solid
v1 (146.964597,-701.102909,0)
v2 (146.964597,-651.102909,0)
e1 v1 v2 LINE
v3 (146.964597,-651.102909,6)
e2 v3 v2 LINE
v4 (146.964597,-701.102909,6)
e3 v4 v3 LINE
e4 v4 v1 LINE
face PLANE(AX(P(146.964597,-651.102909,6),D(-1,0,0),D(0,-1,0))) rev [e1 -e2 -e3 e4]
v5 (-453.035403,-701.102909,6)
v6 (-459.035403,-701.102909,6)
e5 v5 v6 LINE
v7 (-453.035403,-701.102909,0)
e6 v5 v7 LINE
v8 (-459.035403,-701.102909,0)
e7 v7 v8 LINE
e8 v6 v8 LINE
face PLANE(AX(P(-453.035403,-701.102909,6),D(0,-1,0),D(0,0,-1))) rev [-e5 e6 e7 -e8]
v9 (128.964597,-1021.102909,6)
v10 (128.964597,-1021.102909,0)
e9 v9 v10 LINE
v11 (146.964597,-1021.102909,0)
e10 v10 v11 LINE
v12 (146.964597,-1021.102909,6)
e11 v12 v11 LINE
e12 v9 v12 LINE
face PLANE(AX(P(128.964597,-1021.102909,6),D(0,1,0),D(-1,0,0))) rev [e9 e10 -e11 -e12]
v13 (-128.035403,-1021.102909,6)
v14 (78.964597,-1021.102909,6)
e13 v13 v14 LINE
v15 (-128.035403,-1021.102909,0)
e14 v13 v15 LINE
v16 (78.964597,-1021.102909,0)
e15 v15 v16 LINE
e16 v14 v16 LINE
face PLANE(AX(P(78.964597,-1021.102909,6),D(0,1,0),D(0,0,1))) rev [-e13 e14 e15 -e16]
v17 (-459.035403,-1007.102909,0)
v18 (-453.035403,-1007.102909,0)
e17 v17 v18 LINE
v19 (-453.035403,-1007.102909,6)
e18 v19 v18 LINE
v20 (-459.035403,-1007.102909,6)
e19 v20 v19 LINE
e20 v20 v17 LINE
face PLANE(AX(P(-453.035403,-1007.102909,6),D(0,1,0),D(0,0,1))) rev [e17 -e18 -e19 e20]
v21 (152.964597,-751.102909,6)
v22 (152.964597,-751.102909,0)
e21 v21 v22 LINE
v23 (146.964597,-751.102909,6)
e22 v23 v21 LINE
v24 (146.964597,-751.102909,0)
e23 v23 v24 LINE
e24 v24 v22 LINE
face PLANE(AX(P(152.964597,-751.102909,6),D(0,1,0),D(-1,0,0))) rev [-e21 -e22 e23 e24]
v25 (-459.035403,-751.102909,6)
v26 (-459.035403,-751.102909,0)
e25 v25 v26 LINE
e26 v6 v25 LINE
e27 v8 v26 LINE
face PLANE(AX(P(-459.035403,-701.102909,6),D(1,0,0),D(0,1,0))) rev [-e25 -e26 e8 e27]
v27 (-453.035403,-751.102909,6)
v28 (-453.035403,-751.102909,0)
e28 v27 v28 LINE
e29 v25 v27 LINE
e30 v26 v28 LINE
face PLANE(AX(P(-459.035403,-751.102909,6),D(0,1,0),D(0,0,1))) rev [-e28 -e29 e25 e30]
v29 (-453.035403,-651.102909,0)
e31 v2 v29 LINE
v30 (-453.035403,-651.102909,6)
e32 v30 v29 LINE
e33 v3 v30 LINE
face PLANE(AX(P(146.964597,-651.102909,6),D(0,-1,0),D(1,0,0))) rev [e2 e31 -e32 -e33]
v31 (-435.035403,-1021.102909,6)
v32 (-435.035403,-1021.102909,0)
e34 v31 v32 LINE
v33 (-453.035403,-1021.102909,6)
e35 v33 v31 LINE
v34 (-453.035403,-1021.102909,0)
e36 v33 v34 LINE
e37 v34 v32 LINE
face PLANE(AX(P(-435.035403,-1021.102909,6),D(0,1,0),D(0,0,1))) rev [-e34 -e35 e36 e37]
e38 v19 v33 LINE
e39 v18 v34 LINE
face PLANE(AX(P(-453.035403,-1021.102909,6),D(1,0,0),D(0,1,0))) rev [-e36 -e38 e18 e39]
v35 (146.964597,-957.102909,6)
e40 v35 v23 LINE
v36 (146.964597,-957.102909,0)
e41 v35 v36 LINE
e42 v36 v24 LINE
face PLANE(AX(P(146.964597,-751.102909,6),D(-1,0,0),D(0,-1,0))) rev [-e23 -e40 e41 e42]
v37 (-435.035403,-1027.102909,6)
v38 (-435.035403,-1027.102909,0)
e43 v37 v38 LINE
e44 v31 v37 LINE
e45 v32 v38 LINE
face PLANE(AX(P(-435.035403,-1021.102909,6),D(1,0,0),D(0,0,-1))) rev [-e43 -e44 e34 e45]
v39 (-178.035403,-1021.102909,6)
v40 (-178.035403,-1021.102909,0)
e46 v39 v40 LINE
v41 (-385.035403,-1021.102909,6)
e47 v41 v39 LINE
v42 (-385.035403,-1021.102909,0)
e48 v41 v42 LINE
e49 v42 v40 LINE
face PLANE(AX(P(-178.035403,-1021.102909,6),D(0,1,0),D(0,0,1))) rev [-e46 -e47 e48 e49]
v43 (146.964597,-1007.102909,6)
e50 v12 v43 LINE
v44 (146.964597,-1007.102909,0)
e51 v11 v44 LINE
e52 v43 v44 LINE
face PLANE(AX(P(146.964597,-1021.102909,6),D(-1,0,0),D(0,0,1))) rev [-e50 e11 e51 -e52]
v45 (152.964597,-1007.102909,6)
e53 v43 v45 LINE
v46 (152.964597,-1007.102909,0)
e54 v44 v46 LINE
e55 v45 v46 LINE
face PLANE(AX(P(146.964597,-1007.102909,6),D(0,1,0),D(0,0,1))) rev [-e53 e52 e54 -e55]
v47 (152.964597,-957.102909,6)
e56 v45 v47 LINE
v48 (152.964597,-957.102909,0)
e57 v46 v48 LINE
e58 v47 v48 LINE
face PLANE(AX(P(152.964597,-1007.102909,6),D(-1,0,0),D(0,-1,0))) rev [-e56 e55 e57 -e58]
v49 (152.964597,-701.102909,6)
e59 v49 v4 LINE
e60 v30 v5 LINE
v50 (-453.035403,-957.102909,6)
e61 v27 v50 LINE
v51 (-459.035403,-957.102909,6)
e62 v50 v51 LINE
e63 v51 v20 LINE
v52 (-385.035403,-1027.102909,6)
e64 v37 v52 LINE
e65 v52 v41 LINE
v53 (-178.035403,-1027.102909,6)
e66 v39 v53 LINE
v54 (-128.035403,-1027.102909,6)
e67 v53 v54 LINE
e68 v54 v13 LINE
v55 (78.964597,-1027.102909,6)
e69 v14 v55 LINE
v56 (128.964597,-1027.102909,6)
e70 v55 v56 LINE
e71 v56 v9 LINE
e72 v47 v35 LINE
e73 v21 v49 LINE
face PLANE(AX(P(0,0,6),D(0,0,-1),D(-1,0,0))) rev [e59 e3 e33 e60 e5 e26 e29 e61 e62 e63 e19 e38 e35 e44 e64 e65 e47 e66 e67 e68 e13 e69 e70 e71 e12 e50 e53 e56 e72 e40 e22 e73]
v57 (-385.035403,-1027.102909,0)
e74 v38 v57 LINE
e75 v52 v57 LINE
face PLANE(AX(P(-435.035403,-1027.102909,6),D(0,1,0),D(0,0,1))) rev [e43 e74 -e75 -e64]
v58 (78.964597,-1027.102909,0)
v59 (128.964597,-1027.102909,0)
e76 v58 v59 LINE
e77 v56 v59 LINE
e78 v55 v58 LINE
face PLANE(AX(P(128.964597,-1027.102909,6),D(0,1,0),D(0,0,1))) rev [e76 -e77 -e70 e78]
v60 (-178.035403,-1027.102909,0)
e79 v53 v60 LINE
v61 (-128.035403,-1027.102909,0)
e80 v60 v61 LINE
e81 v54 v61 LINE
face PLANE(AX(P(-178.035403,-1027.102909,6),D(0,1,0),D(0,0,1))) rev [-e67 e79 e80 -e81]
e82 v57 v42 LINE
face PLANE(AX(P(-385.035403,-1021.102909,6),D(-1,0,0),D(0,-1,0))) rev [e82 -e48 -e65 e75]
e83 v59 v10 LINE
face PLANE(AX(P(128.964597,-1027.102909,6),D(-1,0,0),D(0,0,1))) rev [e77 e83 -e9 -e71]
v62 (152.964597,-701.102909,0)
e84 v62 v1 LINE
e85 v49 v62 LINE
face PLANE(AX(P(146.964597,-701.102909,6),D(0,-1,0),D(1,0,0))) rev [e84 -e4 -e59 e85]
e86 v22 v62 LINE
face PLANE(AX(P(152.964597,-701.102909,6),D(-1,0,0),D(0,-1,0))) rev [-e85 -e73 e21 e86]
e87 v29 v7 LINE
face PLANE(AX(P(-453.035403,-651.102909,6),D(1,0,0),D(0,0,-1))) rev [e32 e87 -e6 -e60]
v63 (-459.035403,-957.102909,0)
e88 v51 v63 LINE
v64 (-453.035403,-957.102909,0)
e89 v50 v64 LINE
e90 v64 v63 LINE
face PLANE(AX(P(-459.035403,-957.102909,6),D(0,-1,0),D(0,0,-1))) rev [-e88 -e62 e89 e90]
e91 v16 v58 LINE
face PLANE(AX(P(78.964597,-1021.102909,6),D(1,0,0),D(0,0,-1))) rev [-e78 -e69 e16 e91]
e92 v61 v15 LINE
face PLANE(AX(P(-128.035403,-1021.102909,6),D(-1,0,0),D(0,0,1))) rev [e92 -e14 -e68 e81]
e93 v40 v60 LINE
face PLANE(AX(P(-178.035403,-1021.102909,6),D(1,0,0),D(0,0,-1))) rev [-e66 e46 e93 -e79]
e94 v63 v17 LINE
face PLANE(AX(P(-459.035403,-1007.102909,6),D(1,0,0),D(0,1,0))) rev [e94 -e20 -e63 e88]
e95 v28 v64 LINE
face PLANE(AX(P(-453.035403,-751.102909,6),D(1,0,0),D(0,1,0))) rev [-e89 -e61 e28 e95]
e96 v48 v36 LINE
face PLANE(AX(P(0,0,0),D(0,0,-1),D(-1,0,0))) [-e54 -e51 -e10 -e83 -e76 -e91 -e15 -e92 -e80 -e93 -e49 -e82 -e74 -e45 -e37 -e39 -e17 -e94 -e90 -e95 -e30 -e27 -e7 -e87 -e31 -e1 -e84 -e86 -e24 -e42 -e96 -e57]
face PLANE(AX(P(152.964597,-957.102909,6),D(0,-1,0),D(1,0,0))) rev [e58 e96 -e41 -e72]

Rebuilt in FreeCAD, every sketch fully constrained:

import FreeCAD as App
import Part
import Sketcher
from FreeCAD import Vector


def add_polygon(sketch, points):
    """Adds a closed chain of lines whose ends are joined by coincident constraints."""
    first, n = sketch.GeometryCount, len(points)
    for a, b in zip(points, points[1:] + points[:1]):
        sketch.addGeometry(Part.LineSegment(App.Vector(*a, 0), App.Vector(*b, 0)), False)
    for i in range(n):
        sketch.addConstraint(Sketcher.Constraint("Coincident", first + i, 2, first + (i + 1) % n, 1))

doc = App.newDocument("Part")
body = doc.addObject("PartDesign::Body", "Body")

sketch1 = body.newObject("Sketcher::SketchObject", "Sketch")
sketch1.AttachmentSupport = (doc.getObject("XY_Plane"), [""])
sketch1.MapMode = "FlatFace"
add_polygon(sketch1, [(129, -1027), (129, -1021), (147, -1021), (147, -1007), (153, -1007), (153, -957), (147, -957), (147, -751), (153, -751), (153, -701), (147, -701), (147, -651), (-453, -651), (-453, -701), (-459, -701), (-459, -751), (-453, -751), (-453, -957), (-459, -957), (-459, -1007), (-453, -1007), (-453, -1021), (-435, -1021), (-435, -1027), (-385, -1027), (-385, -1021), (-178, -1021), (-178, -1027), (-128, -1027), (-128, -1021), (79, -1021), (79, -1027)])
sketch1.addConstraint(Sketcher.Constraint("Vertical", 0))
sketch1.addConstraint(Sketcher.Constraint("Horizontal", 1))
sketch1.addConstraint(Sketcher.Constraint("Vertical", 2))
sketch1.addConstraint(Sketcher.Constraint("Horizontal", 3))
sketch1.addConstraint(Sketcher.Constraint("Vertical", 4))
sketch1.addConstraint(Sketcher.Constraint("Horizontal", 5))
sketch1.addConstraint(Sketcher.Constraint("Vertical", 6))
sketch1.addConstraint(Sketcher.Constraint("Horizontal", 7))
sketch1.addConstraint(Sketcher.Constraint("Vertical", 8))
sketch1.addConstraint(Sketcher.Constraint("Horizontal", 9))
sketch1.addConstraint(Sketcher.Constraint("Vertical", 10))
sketch1.addConstraint(Sketcher.Constraint("Horizontal", 11))
sketch1.addConstraint(Sketcher.Constraint("Vertical", 12))
sketch1.addConstraint(Sketcher.Constraint("Horizontal", 13))
sketch1.addConstraint(Sketcher.Constraint("Vertical", 14))
sketch1.addConstraint(Sketcher.Constraint("Horizontal", 15))
sketch1.addConstraint(Sketcher.Constraint("Vertical", 16))
sketch1.addConstraint(Sketcher.Constraint("Horizontal", 17))
sketch1.addConstraint(Sketcher.Constraint("Vertical", 18))
sketch1.addConstraint(Sketcher.Constraint("Horizontal", 19))
sketch1.addConstraint(Sketcher.Constraint("Vertical", 20))
sketch1.addConstraint(Sketcher.Constraint("Horizontal", 21))
sketch1.addConstraint(Sketcher.Constraint("Vertical", 22))
sketch1.addConstraint(Sketcher.Constraint("Horizontal", 23))
sketch1.addConstraint(Sketcher.Constraint("Vertical", 24))
sketch1.addConstraint(Sketcher.Constraint("Horizontal", 25))
sketch1.addConstraint(Sketcher.Constraint("Vertical", 26))
sketch1.addConstraint(Sketcher.Constraint("Horizontal", 27))
sketch1.addConstraint(Sketcher.Constraint("Vertical", 28))
sketch1.addConstraint(Sketcher.Constraint("Horizontal", 29))
sketch1.addConstraint(Sketcher.Constraint("Vertical", 30))
sketch1.addConstraint(Sketcher.Constraint("Horizontal", 31))
sketch1.addConstraint(Sketcher.Constraint("Horizontal", 9, 2, 12, 2))
sketch1.addConstraint(Sketcher.Constraint("Horizontal", 7, 2, 14, 2))
sketch1.addConstraint(Sketcher.Constraint("Horizontal", 5, 2, 16, 2))
sketch1.addConstraint(Sketcher.Constraint("Horizontal", 3, 2, 18, 2))
sketch1.addConstraint(Sketcher.Constraint("Horizontal", 1, 2, 20, 2))
sketch1.addConstraint(Sketcher.Constraint("Horizontal", 21, 2, 24, 2))
sketch1.addConstraint(Sketcher.Constraint("Horizontal", 23, 2, 26, 2))
sketch1.addConstraint(Sketcher.Constraint("Horizontal", 25, 2, 28, 2))
sketch1.addConstraint(Sketcher.Constraint("Horizontal", 27, 2, 30, 2))
sketch1.addConstraint(Sketcher.Constraint("Vertical", 2, 2, 5, 2))
sketch1.addConstraint(Sketcher.Constraint("Vertical", 4, 2, 7, 2))
sketch1.addConstraint(Sketcher.Constraint("Vertical", 6, 2, 9, 2))
sketch1.addConstraint(Sketcher.Constraint("Vertical", 12, 2, 15, 2))
sketch1.addConstraint(Sketcher.Constraint("Vertical", 14, 2, 17, 2))
sketch1.addConstraint(Sketcher.Constraint("Vertical", 16, 2, 19, 2))
sketch1.addConstraint(Sketcher.Constraint("Equal", 9, 13))
sketch1.addConstraint(Sketcher.Constraint("Equal", 1, 21))
sketch1.addConstraint(Sketcher.Constraint("Equal", 23, 27))
sketch1.addConstraint(Sketcher.Constraint("Equal", 25, 29))
sketch1.addConstraint(Sketcher.Constraint("Equal", 27, 31))
sketch1.addConstraint(Sketcher.Constraint("Equal", 19, 0))
sketch1.addConstraint(Sketcher.Constraint("Equal", 31, 4))
sketch1.addConstraint(Sketcher.Constraint("Equal", 4, 8))
sketch1.addConstraint(Sketcher.Constraint("Equal", 8, 10))
sketch1.addConstraint(Sketcher.Constraint("DistanceX", 1, 1, 1, 2, 18.0))
sketch1.addConstraint(Sketcher.Constraint("DistanceX", 3, 1, 3, 2, 6.0))
sketch1.addConstraint(Sketcher.Constraint("DistanceX", 11, 2, 11, 1, 600.0))
sketch1.addConstraint(Sketcher.Constraint("DistanceX", 23, 1, 23, 2, 50.0))
sketch1.addConstraint(Sketcher.Constraint("DistanceY", 2, 1, 2, 2, 14.0))
sketch1.addConstraint(Sketcher.Constraint("DistanceY", 6, 1, 6, 2, 206.0))
sketch1.addConstraint(Sketcher.Constraint("DistanceY", 0, 2, -1, 1, 1021.102909))
sketch1.addConstraint(Sketcher.Constraint("DistanceX", -1, 1, 0, 2, 128.964597))
pad1 = body.newObject("PartDesign::Pad", "Pad")
pad1.Profile = sketch1
pad1.Length = 6

doc.recompute()
